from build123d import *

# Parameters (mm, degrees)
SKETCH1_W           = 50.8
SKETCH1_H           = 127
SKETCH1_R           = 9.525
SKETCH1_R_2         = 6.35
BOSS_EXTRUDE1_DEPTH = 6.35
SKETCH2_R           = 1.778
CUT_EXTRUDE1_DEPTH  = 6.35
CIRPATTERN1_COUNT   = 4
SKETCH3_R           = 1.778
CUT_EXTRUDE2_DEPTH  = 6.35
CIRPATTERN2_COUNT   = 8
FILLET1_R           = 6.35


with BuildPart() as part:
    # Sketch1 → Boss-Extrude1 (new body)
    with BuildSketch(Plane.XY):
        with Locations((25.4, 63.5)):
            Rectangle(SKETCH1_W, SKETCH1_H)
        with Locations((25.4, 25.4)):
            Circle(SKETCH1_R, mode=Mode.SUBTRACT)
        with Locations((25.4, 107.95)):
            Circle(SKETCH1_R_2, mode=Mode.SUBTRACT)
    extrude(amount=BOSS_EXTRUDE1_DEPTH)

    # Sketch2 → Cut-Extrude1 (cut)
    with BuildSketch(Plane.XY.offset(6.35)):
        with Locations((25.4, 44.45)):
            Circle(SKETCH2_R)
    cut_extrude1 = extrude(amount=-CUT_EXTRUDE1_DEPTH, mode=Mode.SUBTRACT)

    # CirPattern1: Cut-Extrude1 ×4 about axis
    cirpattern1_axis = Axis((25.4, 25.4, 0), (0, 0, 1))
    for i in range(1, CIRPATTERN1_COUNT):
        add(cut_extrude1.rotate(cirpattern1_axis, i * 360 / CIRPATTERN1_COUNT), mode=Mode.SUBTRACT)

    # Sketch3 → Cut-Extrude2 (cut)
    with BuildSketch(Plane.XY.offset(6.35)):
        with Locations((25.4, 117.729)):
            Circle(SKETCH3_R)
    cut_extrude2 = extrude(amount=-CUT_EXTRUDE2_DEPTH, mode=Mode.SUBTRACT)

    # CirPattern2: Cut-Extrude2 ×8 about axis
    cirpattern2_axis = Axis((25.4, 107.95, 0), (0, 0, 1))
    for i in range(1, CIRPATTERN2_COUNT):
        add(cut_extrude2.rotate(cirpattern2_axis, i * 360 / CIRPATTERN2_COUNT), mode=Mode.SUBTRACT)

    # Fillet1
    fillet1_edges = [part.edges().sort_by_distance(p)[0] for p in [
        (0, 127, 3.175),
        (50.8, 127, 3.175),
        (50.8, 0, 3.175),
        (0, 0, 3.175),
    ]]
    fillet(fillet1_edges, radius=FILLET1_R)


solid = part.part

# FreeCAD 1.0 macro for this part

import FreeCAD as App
import Part
import Sketcher

V = App.Vector
Q = App.Units.Quantity


def edges_at(feature, points):
    """Names of the edges that pass closest to the given points."""
    edges = feature.Shape.Edges
    near = lambda p: min(range(len(edges)), key=lambda i: edges[i].distToShape(Part.Vertex(*p))[0])
    return sorted({f"Edge{near(p) + 1}" for p in points})

doc = App.newDocument("Part")
body = doc.addObject("PartDesign::Body", "Body")

sketch1 = body.newObject("Sketcher::SketchObject", "Sketch")
sketch1.AttachmentSupport = (doc.getObject("XY_Plane"), [""])
sketch1.MapMode = "FlatFace"
sketch1.addGeometry(Part.LineSegment(V(0, 127, 0), V(0, 0, 0)), False)
sketch1.addGeometry(Part.LineSegment(V(0, 0, 0), V(51, 0, 0)), False)
sketch1.addGeometry(Part.LineSegment(V(51, 0, 0), V(51, 127, 0)), False)
sketch1.addGeometry(Part.LineSegment(V(51, 127, 0), V(0, 127, 0)), False)
sketch1.addGeometry(Part.Circle(V(25, 25, 0), V(0, 0, 1), 10), False)
sketch1.addGeometry(Part.Circle(V(25, 108, 0), V(0, 0, 1), 6), False)
sketch1.addConstraint(Sketcher.Constraint("Coincident", 0, 2, 1, 1))
sketch1.addConstraint(Sketcher.Constraint("Coincident", 1, 2, 2, 1))
sketch1.addConstraint(Sketcher.Constraint("Coincident", 2, 2, 3, 1))
sketch1.addConstraint(Sketcher.Constraint("Coincident", 3, 2, 0, 1))
sketch1.addConstraint(Sketcher.Constraint("Vertical", 0))
sketch1.addConstraint(Sketcher.Constraint("Horizontal", 1))
sketch1.addConstraint(Sketcher.Constraint("Vertical", 2))
sketch1.addConstraint(Sketcher.Constraint("Horizontal", 3))
sketch1.addConstraint(Sketcher.Constraint("Coincident", 0, 2, -1, 1))
sketch1.addConstraint(Sketcher.Constraint("Vertical", 4, 3, 5, 3))
sketch1.addConstraint(Sketcher.Constraint("Diameter", 5, Q("0.5 in")))
sketch1.addConstraint(Sketcher.Constraint("Diameter", 4, Q("0.75 in")))
sketch1.addConstraint(Sketcher.Constraint("DistanceX", 1, 1, 1, 2, Q("2 in")))
sketch1.addConstraint(Sketcher.Constraint("DistanceY", 0, 2, 0, 1, Q("5 in")))
sketch1.addConstraint(Sketcher.Constraint("DistanceX", -1, 1, 4, 3, Q("1 in")))
sketch1.addConstraint(Sketcher.Constraint("DistanceY", -1, 1, 4, 3, Q("1 in")))
sketch1.addConstraint(Sketcher.Constraint("DistanceY", -1, 1, 5, 3, Q("4.25 in")))
pad1 = body.newObject("PartDesign::Pad", "Pad")
pad1.Profile = sketch1
pad1.Length = Q("0.25 in")

sketch2 = body.newObject("Sketcher::SketchObject", "Sketch001")
sketch2.AttachmentSupport = (doc.getObject("XY_Plane"), [""])
sketch2.MapMode = "FlatFace"
sketch2.AttachmentOffset = App.Placement(V(0, 0, 0.25 * 25.4), App.Rotation())
sketch2.addGeometry(Part.Circle(V(25.4, 44.5, 0), V(0, 0, 1), 1.8), False)
sketch2.addConstraint(Sketcher.Constraint("Diameter", 0, Q("0.14 in")))
sketch2.addConstraint(Sketcher.Constraint("DistanceX", -1, 1, 0, 3, Q("1 in")))
sketch2.addConstraint(Sketcher.Constraint("DistanceY", -1, 1, 0, 3, Q("1.75 in")))
pocket1 = body.newObject("PartDesign::Pocket", "Pocket")
pocket1.Profile = sketch2
pocket1.Length = Q("0.25 in")
doc.recompute()

datumline = body.newObject("PartDesign::Line", "DatumLine")
datumline.Placement = App.Placement(V(25.4, 25.4, 0), App.Rotation(V(0, 0, 1), V(0, 0, 1)))
polarpattern = body.newObject("PartDesign::PolarPattern", "PolarPattern")
polarpattern.Originals = [pocket1]
polarpattern.Axis = (datumline, [""])
polarpattern.Angle = 360
polarpattern.Occurrences = 4
body.Tip = polarpattern

sketch3 = body.newObject("Sketcher::SketchObject", "Sketch002")
sketch3.AttachmentSupport = (doc.getObject("XY_Plane"), [""])
sketch3.MapMode = "FlatFace"
sketch3.AttachmentOffset = App.Placement(V(0, 0, 0.25 * 25.4), App.Rotation())
sketch3.addGeometry(Part.Circle(V(25.4, 117.7, 0), V(0, 0, 1), 1.8), False)
sketch3.addConstraint(Sketcher.Constraint("Diameter", 0, Q("0.14 in")))
sketch3.addConstraint(Sketcher.Constraint("DistanceX", -1, 1, 0, 3, Q("1 in")))
sketch3.addConstraint(Sketcher.Constraint("DistanceY", -1, 1, 0, 3, Q("4.635 in")))
pocket2 = body.newObject("PartDesign::Pocket", "Pocket001")
pocket2.Profile = sketch3
pocket2.Length = Q("0.25 in")
doc.recompute()

datumline2 = body.newObject("PartDesign::Line", "DatumLine001")
datumline2.Placement = App.Placement(V(25.4, 107.95, 0), App.Rotation(V(0, 0, 1), V(0, 0, 1)))
polarpattern2 = body.newObject("PartDesign::PolarPattern", "PolarPattern001")
polarpattern2.Originals = [pocket2]
polarpattern2.Axis = (datumline2, [""])
polarpattern2.Angle = 360
polarpattern2.Occurrences = 8
body.Tip = polarpattern2
doc.recompute()

fillet = body.newObject("PartDesign::Fillet", "Fillet")
fillet.Base = (polarpattern2, edges_at(polarpattern2, [
    (0, 127, 3.175),
    (50.8, 127, 3.175),
    (50.8, 0, 3.175),
    (0, 0, 3.175),
]))
fillet.Radius = Q("0.25 in")

doc.recompute()
